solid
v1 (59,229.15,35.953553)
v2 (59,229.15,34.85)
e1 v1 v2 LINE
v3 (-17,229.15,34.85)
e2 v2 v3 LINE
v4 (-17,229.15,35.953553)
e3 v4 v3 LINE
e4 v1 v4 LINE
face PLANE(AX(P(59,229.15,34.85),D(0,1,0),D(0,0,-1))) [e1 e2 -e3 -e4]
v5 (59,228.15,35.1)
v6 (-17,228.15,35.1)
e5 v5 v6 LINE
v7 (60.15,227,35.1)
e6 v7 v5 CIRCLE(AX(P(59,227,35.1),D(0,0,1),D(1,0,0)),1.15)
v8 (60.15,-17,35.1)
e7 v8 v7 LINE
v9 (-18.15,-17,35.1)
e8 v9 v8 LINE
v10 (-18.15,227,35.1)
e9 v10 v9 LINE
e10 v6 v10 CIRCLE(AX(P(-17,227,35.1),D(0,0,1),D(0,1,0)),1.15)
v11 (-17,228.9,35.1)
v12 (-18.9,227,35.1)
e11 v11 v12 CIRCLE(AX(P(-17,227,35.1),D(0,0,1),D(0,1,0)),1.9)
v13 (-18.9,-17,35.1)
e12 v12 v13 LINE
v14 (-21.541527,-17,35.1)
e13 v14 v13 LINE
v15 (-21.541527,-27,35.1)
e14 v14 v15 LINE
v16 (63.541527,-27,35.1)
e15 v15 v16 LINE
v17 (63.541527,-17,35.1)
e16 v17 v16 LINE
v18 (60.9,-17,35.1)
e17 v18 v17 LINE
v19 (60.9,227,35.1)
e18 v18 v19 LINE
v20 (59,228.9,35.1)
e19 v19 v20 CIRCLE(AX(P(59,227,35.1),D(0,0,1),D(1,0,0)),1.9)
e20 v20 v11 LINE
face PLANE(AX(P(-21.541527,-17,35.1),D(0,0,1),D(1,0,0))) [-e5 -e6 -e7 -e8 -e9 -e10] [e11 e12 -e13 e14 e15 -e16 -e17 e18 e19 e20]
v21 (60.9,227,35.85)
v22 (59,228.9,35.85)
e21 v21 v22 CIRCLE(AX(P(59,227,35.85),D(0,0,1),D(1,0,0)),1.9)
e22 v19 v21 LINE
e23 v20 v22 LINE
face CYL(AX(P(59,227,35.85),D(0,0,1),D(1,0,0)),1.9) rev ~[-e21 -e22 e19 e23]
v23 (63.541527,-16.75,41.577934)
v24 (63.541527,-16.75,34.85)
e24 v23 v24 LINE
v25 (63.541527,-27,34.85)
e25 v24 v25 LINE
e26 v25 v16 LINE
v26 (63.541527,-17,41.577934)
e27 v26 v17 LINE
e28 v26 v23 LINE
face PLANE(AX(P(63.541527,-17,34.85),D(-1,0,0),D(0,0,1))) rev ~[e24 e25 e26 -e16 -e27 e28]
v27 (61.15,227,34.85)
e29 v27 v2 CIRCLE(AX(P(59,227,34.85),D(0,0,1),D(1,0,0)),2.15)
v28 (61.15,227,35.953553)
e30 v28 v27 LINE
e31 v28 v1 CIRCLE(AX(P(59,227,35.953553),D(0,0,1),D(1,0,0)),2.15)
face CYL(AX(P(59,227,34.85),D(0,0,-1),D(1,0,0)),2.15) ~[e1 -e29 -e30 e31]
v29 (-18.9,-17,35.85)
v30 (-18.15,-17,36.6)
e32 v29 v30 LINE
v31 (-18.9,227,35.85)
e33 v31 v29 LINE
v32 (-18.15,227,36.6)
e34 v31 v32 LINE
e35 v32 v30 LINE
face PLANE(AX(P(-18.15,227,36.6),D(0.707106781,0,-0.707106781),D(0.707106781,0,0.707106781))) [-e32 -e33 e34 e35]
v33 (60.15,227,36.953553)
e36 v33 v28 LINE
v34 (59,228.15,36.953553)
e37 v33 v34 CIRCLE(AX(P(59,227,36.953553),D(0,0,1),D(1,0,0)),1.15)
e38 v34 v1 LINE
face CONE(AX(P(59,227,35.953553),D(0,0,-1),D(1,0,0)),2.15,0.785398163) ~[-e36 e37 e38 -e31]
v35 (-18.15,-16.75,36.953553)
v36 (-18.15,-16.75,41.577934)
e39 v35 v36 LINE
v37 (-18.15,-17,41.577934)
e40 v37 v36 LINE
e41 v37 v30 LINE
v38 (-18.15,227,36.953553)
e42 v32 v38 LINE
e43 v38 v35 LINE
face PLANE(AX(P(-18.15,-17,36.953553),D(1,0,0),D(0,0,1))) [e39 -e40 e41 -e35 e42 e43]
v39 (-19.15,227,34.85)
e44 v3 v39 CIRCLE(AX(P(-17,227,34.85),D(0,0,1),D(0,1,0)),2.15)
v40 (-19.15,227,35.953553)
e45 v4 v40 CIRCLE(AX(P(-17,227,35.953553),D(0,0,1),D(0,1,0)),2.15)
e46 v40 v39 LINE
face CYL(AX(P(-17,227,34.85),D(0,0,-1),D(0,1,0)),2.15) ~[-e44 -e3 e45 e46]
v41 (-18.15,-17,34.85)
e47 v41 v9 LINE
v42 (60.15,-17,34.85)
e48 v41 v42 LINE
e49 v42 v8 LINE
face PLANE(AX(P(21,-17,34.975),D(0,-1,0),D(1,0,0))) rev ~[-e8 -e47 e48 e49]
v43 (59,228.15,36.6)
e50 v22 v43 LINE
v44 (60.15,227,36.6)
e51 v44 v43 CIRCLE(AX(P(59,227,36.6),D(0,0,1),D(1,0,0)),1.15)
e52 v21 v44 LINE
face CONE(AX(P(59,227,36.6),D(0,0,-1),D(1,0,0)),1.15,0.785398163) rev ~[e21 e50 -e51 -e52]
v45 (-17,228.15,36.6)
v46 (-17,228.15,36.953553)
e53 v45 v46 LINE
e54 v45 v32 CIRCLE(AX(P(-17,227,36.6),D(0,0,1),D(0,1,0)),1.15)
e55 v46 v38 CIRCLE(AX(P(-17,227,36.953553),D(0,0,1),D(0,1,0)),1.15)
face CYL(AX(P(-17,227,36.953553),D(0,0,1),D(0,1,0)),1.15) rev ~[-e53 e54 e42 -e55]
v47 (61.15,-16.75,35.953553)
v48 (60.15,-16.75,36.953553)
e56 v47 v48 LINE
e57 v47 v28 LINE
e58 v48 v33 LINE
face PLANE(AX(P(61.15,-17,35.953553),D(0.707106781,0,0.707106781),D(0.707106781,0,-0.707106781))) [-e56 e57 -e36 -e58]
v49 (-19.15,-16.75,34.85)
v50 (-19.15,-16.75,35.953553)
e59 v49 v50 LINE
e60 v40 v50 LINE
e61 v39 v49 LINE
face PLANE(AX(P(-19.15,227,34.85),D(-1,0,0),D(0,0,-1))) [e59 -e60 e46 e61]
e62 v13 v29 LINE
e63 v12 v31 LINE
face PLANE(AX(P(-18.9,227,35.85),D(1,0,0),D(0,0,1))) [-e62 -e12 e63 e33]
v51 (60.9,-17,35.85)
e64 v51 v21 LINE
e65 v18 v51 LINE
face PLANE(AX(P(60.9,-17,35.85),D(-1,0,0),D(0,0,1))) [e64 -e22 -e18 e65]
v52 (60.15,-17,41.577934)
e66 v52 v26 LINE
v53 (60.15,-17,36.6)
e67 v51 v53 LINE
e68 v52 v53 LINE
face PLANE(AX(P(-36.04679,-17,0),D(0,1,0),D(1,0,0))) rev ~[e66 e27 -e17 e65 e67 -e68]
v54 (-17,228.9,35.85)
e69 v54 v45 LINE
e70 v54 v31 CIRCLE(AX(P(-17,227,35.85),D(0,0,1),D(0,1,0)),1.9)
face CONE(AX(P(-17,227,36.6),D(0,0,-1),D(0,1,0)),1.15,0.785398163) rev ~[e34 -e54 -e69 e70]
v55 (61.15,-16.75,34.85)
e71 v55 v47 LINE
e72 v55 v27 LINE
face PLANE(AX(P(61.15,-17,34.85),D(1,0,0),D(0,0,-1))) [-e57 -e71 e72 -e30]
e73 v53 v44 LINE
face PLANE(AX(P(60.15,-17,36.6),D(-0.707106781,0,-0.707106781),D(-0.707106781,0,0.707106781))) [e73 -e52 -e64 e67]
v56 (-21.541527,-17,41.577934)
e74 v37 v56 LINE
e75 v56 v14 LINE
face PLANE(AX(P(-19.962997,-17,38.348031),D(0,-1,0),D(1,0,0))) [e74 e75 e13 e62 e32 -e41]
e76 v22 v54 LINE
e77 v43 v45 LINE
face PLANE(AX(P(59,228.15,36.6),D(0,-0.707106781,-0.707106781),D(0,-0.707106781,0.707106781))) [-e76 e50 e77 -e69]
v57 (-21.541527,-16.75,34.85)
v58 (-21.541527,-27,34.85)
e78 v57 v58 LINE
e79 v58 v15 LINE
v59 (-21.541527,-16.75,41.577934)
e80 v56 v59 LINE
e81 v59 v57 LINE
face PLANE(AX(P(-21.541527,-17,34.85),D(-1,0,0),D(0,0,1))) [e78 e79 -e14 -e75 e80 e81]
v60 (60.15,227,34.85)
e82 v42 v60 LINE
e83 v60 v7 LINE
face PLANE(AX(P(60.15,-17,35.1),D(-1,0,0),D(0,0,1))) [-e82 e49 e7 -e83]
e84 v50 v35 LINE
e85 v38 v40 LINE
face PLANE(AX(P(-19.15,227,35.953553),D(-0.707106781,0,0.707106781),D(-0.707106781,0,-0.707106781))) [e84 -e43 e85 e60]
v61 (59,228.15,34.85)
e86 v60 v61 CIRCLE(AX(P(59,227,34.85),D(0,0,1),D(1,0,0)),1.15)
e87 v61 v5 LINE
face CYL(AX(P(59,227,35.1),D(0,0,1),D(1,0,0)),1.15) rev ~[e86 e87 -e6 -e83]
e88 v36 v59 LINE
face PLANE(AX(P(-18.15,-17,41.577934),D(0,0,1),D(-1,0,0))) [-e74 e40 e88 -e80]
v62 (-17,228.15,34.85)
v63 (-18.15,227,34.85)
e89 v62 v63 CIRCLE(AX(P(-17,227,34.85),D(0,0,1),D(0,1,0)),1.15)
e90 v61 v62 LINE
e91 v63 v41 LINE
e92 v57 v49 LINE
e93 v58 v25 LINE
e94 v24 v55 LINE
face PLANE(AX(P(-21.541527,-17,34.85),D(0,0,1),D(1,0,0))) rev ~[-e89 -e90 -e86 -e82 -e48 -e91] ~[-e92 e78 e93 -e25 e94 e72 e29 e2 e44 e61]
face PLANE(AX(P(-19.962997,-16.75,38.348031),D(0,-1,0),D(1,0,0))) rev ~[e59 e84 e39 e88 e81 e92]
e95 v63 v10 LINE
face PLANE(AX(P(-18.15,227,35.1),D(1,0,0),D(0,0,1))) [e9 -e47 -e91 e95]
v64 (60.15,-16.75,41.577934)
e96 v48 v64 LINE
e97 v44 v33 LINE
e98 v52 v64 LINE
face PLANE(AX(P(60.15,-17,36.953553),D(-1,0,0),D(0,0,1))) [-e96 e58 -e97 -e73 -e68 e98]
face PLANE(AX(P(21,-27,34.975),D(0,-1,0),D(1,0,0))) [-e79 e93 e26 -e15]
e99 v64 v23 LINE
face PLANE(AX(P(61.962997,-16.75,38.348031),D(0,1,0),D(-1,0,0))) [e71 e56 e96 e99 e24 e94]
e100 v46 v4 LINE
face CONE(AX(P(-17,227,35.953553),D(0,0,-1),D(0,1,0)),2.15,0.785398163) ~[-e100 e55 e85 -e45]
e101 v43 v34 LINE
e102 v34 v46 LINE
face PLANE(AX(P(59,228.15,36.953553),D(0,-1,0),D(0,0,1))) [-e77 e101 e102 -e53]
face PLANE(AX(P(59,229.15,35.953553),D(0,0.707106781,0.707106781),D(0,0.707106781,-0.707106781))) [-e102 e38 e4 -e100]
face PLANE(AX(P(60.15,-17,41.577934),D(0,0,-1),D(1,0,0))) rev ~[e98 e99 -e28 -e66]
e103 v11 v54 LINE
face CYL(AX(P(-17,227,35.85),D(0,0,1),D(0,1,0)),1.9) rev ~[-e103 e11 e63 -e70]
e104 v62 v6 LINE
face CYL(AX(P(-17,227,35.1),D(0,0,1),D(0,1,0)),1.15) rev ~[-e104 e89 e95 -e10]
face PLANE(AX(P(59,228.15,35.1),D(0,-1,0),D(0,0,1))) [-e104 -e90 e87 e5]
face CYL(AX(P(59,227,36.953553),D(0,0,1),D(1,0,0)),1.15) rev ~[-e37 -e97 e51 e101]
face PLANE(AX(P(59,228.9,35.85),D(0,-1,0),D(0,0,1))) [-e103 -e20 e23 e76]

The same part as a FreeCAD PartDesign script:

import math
import FreeCAD as App
import Part
import Sketcher
Q = App.Units.Quantity


def add_polygon(sketch, points):
    """Adds a closed chain of lines whose ends are joined by coincident constraints."""
    first, n = sketch.GeometryCount, len(points)
    for a, b in zip(points, points[1:] + points[:1]):
        sketch.addGeometry(Part.LineSegment(App.Vector(*a, 0), App.Vector(*b, 0)), False)
    for i in range(n):
        sketch.addConstraint(Sketcher.Constraint("Coincident", first + i, 2, first + (i + 1) % n, 1))

doc = App.newDocument("Part")
body = doc.addObject("PartDesign::Body", "Body")

sketch1 = body.newObject("Sketcher::SketchObject", "Sketch")
sketch1.AttachmentSupport = (doc.getObject("XZ_Plane"), [""])
sketch1.MapMode = "FlatFace"
add_polygon(sketch1, [(-18.9, 35.85), (-18.15, 36.6), (-18.15, 36.953553), (-19.15, 35.953553), (-19.15, 34.85), (-18.15, 34.85), (-18.15, 35.1), (-18.9, 35.1)])
sketch1.addConstraint([
    Sketcher.Constraint("Vertical", 1),
    Sketcher.Constraint("Vertical", 3),
    Sketcher.Constraint("Horizontal", 4),
    Sketcher.Constraint("Vertical", 5),
    Sketcher.Constraint("Horizontal", 6),
    Sketcher.Constraint("Vertical", 7),
    Sketcher.Constraint("Parallel", 0, 2),
    Sketcher.Constraint("Vertical", 1, 2, 4, 2),
    Sketcher.Constraint("Equal", 6, 7),
    Sketcher.Constraint("DistanceX", 4, 1, 4, 2, 1.0),
    Sketcher.Constraint("Angle", 0, Q("45 deg")),
    Sketcher.Constraint("DistanceY", 3, 2, 7, 2, 1.0),
    Sketcher.Constraint("DistanceX", 6, 2, 6, 1, 0.75),
    Sketcher.Constraint("DistanceY", -1, 1, 0, 2, 36.6),
    Sketcher.Constraint("DistanceX", 6, 2, -1, 1, 18.9),
    Sketcher.Constraint("DistanceY", 1, 1, 1, 2, 0.353553),
])

sketch2 = body.newObject("Sketcher::SketchObject", "Sketch001")
sketch2.AttachmentSupport = (doc.getObject("XY_Plane"), [""])
sketch2.MapMode = "FlatFace"
sketch2.addGeometry([
    Part.LineSegment(App.Vector(-18.15, 227, 0), App.Vector(-18.15, -17, 0)),
    Part.ArcOfCircle(Part.Circle(App.Vector(-17, -17, 0), App.Vector(0, 0, 1), 1.15), math.radians(180), math.radians(270)),
    Part.LineSegment(App.Vector(-17, -18.15, 0), App.Vector(59, -18.15, 0)),
    Part.ArcOfCircle(Part.Circle(App.Vector(59, -17, 0), App.Vector(0, 0, 1), 1.15), math.radians(-90), math.radians(0)),
    Part.LineSegment(App.Vector(60.15, -17, 0), App.Vector(60.15, 227, 0)),
    Part.ArcOfCircle(Part.Circle(App.Vector(59, 227, 0), App.Vector(0, 0, 1), 1.15), math.radians(0), math.radians(90)),
    Part.LineSegment(App.Vector(59, 228.15, 0), App.Vector(-17, 228.15, 0)),
    Part.ArcOfCircle(Part.Circle(App.Vector(-17, 227, 0), App.Vector(0, 0, 1), 1.15), math.radians(90), math.radians(180)),
], False)
sketch2.addConstraint([
    Sketcher.Constraint("Tangent", 0, 2, 1, 1),
    Sketcher.Constraint("Tangent", 1, 2, 2, 1),
    Sketcher.Constraint("Tangent", 2, 2, 3, 1),
    Sketcher.Constraint("Tangent", 3, 2, 4, 1),
    Sketcher.Constraint("Tangent", 4, 2, 5, 1),
    Sketcher.Constraint("Tangent", 5, 2, 6, 1),
    Sketcher.Constraint("Tangent", 6, 2, 7, 1),
    Sketcher.Constraint("Tangent", 7, 2, 0, 1),
    Sketcher.Constraint("Vertical", 0),
    Sketcher.Constraint("Horizontal", 2),
    Sketcher.Constraint("Vertical", 4),
    Sketcher.Constraint("Horizontal", 6),
    Sketcher.Constraint("Equal", 1, 3),
    Sketcher.Constraint("Equal", 3, 5),
    Sketcher.Constraint("Equal", 5, 7),
    Sketcher.Constraint("DistanceX", 2, 1, 2, 2, 76.0),
    Sketcher.Constraint("DistanceY", 0, 2, 0, 1, 244.0),
    Sketcher.Constraint("Radius", 1, 1.15),
    Sketcher.Constraint("DistanceX", 1, 3, -1, 1, 17.0),
    Sketcher.Constraint("DistanceY", 1, 3, -1, 1, 17.0),
])
doc.recompute()

additivepipe = body.newObject("PartDesign::AdditivePipe", "AdditivePipe")
additivepipe.Profile = sketch1
additivepipe.Spine = (sketch2, ["Edge1", "Edge2", "Edge3", "Edge4", "Edge5", "Edge6", "Edge7", "Edge8"])

sketch3 = body.newObject("Sketcher::SketchObject", "Sketch002")
sketch3.AttachmentSupport = (doc.getObject("XZ_Plane"), [""])
sketch3.MapMode = "FlatFace"
sketch3.AttachmentOffset = App.Placement(App.Vector(0, 0, 17), App.Rotation())
add_polygon(sketch3, [(-18.15, 36.953553), (-18.15, 41.577934), (-21.541527, 41.577934), (-21.541527, 34.85), (-19.15, 34.85), (-19.15, 35.953553)])
add_polygon(sketch3, [(60.15, 41.577934), (60.15, 36.953553), (61.15, 35.953553), (61.15, 34.85), (63.541527, 34.85), (63.541527, 41.577934)])
sketch3.addConstraint([
    Sketcher.Constraint("Vertical", 0),
    Sketcher.Constraint("Horizontal", 1),
    Sketcher.Constraint("Vertical", 2),
    Sketcher.Constraint("Horizontal", 3),
    Sketcher.Constraint("Vertical", 4),
    Sketcher.Constraint("Vertical", 6),
    Sketcher.Constraint("Vertical", 8),
    Sketcher.Constraint("Horizontal", 9),
    Sketcher.Constraint("Vertical", 10),
    Sketcher.Constraint("Horizontal", 11),
    Sketcher.Constraint("Perpendicular", 5, 7),
    Sketcher.Constraint("Horizontal", 5, 2, 6, 2),
    Sketcher.Constraint("Horizontal", 4, 2, 7, 2),
    Sketcher.Constraint("Horizontal", 3, 2, 8, 2),
    Sketcher.Constraint("Horizontal", 1, 2, 10, 2),
    Sketcher.Constraint("Equal", 3, 9),
    Sketcher.Constraint("Equal", 1, 11),
    Sketcher.Constraint("DistanceX", 3, 2, 0, 2, 1.0),
    Sketcher.Constraint("DistanceX", 5, 2, 6, 2, 78.3),
    Sketcher.Constraint("DistanceX", 0, 2, -1, 1, 18.15),
    Sketcher.Constraint("DistanceY", -1, 1, 2, 2, 34.85),
    Sketcher.Constraint("DistanceY", 0, 1, 0, 2, 4.624381),
    Sketcher.Constraint("DistanceX", 1, 2, 1, 1, 3.391527),
    Sketcher.Constraint("DistanceY", 2, 2, 2, 1, 6.727934),
])
pad1 = body.newObject("PartDesign::Pad", "Pad")
pad1.Profile = sketch3
pad1.Length = 0.25
pad1.Reversed = True

sketch4 = body.newObject("Sketcher::SketchObject", "Sketch003")
sketch4.AttachmentSupport = (doc.getObject("XY_Plane"), [""])
sketch4.MapMode = "FlatFace"
add_polygon(sketch4, [(-36.04679, -17), (-36.04679, -32.372729), (65.271707, -32.372729), (65.271707, -17)])
sketch4.addConstraint([
    Sketcher.Constraint("Vertical", 0),
    Sketcher.Constraint("Horizontal", 1),
    Sketcher.Constraint("Vertical", 2),
    Sketcher.Constraint("Horizontal", 3),
    Sketcher.Constraint("DistanceY", 2, 2, -1, 1, 17.0),
    Sketcher.Constraint("DistanceY", 0, 2, 0, 1, 15.372729),
    Sketcher.Constraint("DistanceX", 1, 1, 1, 2, 101.318497),
    Sketcher.Constraint("DistanceX", 0, 2, -1, 1, 36.04679),
])
pocket1 = body.newObject("PartDesign::Pocket", "Pocket")
pocket1.Profile = sketch4
pocket1.Type = "ThroughAll"
pocket1.Reversed = True

sketch5 = body.newObject("Sketcher::SketchObject", "Sketch004")
sketch5.AttachmentSupport = (doc.getObject("XZ_Plane"), [""])
sketch5.MapMode = "FlatFace"
sketch5.AttachmentOffset = App.Placement(App.Vector(0, 0, 17), App.Rotation())
add_polygon(sketch5, [(-21.541527, 35.1), (-21.541527, 34.85), (63.541527, 34.85), (63.541527, 35.1)])
sketch5.addConstraint([
    Sketcher.Constraint("Vertical", 0),
    Sketcher.Constraint("Horizontal", 1),
    Sketcher.Constraint("Vertical", 2),
    Sketcher.Constraint("Horizontal", 3),
    Sketcher.Constraint("DistanceY", 0, 2, 0, 1, 0.25),
    Sketcher.Constraint("DistanceY", -1, 1, 2, 2, 35.1),
    Sketcher.Constraint("DistanceX", 1, 1, 1, 2, 85.083054),
    Sketcher.Constraint("DistanceX", 0, 2, -1, 1, 21.541527),
])
pad2 = body.newObject("PartDesign::Pad", "Pad001")
pad2.Profile = sketch5
pad2.Length = 10

doc.recompute()
